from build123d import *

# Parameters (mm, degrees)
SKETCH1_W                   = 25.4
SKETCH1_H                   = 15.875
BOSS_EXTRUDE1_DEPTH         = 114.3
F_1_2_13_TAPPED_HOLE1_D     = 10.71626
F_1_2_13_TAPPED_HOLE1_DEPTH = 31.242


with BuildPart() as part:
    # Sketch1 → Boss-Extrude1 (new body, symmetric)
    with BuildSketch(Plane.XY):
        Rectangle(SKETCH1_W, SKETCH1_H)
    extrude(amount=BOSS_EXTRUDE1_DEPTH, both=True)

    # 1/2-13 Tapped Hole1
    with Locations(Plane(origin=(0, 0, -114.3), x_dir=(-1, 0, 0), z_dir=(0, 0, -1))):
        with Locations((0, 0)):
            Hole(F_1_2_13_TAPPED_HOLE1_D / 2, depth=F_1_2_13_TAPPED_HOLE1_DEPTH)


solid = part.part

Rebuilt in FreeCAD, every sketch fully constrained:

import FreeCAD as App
import Part
import Sketcher

V = App.Vector
Q = App.Units.Quantity

doc = App.newDocument("Part")
body = doc.addObject("PartDesign::Body", "Body")

sketch1 = doc.addObject("Sketcher::SketchObject", "Sketch")
body.addObject(sketch1)
sketch1.AttachmentSupport = (doc.XY_Plane, [""])
sketch1.MapMode = "FlatFace"
sketch1.addGeometry([
    Part.LineSegment(V(-13, 8, 0), V(-13, -8, 0)),
    Part.LineSegment(V(-13, -8, 0), V(13, -8, 0)),
    Part.LineSegment(V(13, -8, 0), V(13, 8, 0)),
    Part.LineSegment(V(13, 8, 0), V(-13, 8, 0)),
], False)
sketch1.addConstraint([
    Sketcher.Constraint("Coincident", 0, 2, 1, 1),
    Sketcher.Constraint("Coincident", 1, 2, 2, 1),
    Sketcher.Constraint("Coincident", 2, 2, 3, 1),
    Sketcher.Constraint("Coincident", 3, 2, 0, 1),
    Sketcher.Constraint("Vertical", 0),
    Sketcher.Constraint("Horizontal", 1),
    Sketcher.Constraint("Vertical", 2),
    Sketcher.Constraint("Horizontal", 3),
    Sketcher.Constraint("Symmetric", 0, 2, 2, 2, -1, 1),
    Sketcher.Constraint("DistanceX", 1, 1, 1, 2, Q("1 in")),
    Sketcher.Constraint("DistanceY", 0, 2, 0, 1, Q("0.625 in")),
])
pad1 = doc.addObject("PartDesign::Pad", "Pad")
body.addObject(pad1)
pad1.Profile = sketch1
pad1.Length = Q("9 in")
pad1.Midplane = True

sketch2 = doc.addObject("Sketcher::SketchObject", "Sketch001")
body.addObject(sketch2)
sketch2.AttachmentSupport = (doc.XY_Plane, [""])
sketch2.MapMode = "FlatFace"
sketch2.AttachmentOffset = App.Placement(V(0, 0, -4.5 * 25.4), App.Rotation())
sketch2.addGeometry(Part.Circle(V(0, 0, 0), V(0, 0, 1), 5), False)
sketch2.addConstraint([
    Sketcher.Constraint("Coincident", 0, 3, -1, 1),
    Sketcher.Constraint("Diameter", 0, Q("0.4219 in")),
])
doc.recompute()
hole = doc.addObject("PartDesign::Hole", "Hole")
body.addObject(hole)
hole.Profile = sketch2
hole.ThreadType = "None"
hole.Diameter = Q("0.4219 in")
hole.DepthType = "Dimension"
hole.Depth = Q("1.23 in")
hole.DrillPoint = "Flat"
hole.Reversed = True

doc.recompute()
